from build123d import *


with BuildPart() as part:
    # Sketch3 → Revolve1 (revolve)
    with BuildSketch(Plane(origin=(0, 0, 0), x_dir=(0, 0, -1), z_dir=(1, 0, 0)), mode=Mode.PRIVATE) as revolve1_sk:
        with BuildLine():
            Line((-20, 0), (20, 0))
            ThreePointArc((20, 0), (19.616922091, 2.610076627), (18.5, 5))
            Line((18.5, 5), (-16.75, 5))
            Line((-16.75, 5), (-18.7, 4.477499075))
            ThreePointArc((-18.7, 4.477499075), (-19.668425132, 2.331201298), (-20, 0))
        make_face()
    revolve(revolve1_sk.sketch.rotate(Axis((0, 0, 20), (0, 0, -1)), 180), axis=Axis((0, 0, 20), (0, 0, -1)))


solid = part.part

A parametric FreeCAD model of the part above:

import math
import FreeCAD as App
import Part
import Sketcher

V = App.Vector
Q = App.Units.Quantity

doc = App.newDocument("Part")
params = doc.addObject("Spreadsheet::Sheet", "Params")
for row, (alias, value) in enumerate([
    ("sketch1_height", "40 mm"),
    ("sketch1_height2", "35.25 mm"),
    ("revolution_angle", "360 deg"),
], start=1):
    params.set(f"A{row}", alias)
    params.set(f"B{row}", "=" + value)
    params.setAlias(f"B{row}", alias)

body = doc.addObject("PartDesign::Body", "Body")

# Sketch on YZ plane
sketch1 = doc.addObject("Sketcher::SketchObject", "Sketch")
body.addObject(sketch1)
sketch1.AttachmentSupport = (doc.YZ_Plane, [""])
sketch1.MapMode = "FlatFace"
sketch1.addGeometry(Part.LineSegment(V(0, 20, 0), V(0, -20, 0)), False)
sketch1.addGeometry(Part.ArcOfCircle(Part.Circle(V(0, -10.916667, 0), V(0, 0, 1), 9.083333), math.radians(-90), math.radians(-56.601512)), False)
sketch1.addGeometry(Part.LineSegment(V(5, -18.5, 0), V(5, 16.75, 0)), False)
sketch1.addGeometry(Part.LineSegment(V(5, 16.75, 0), V(4.477499, 18.7, 0)), False)
sketch1.addGeometry(Part.ArcOfCircle(Part.Circle(V(0, 11.639232, 0), V(0, 0, 1), 8.360768), math.radians(57.619678), math.radians(90)), False)
sketch1.addConstraint(Sketcher.Constraint("Coincident", 0, 2, 1, 1))
sketch1.addConstraint(Sketcher.Constraint("Coincident", 1, 2, 2, 1))
sketch1.addConstraint(Sketcher.Constraint("Coincident", 2, 2, 3, 1))
sketch1.addConstraint(Sketcher.Constraint("Coincident", 3, 2, 4, 1))
sketch1.addConstraint(Sketcher.Constraint("Coincident", 4, 2, 0, 1))
sketch1.addConstraint(Sketcher.Constraint("Vertical", 0))
sketch1.addConstraint(Sketcher.Constraint("Vertical", 2))
sketch1.addConstraint(Sketcher.Constraint("Symmetric", 0, 2, 4, 2, -1, 1))
sketch1.addConstraint(Sketcher.Constraint("PointOnObject", 1, 3, -2))
sketch1.addConstraint(Sketcher.Constraint("PointOnObject", 4, 3, -2))
sketch1.addConstraint(Sketcher.Constraint("DistanceY", 0, 2, 0, 1, Q("40 mm")))
sketch1.addConstraint(Sketcher.Constraint("Angle", 3, Q("105 deg")))
sketch1.addConstraint(Sketcher.Constraint("DistanceX", -1, 1, 1, 2, Q("5 mm")))
sketch1.addConstraint(Sketcher.Constraint("DistanceY", 2, 1, 2, 2, Q("35.25 mm")))
sketch1.addConstraint(Sketcher.Constraint("DistanceY", 1, 2, -1, 1, Q("18.5 mm")))
sketch1.addConstraint(Sketcher.Constraint("DistanceY", -1, 1, 3, 2, Q("18.7 mm")))
sketch1.setExpression("Constraints[10]", "Params.sketch1_height")
sketch1.setExpression("Constraints[13]", "Params.sketch1_height2")
revolution = doc.addObject("PartDesign::Revolution", "Revolution")
body.addObject(revolution)
revolution.Profile = sketch1
revolution.ReferenceAxis = (sketch1, ["V_Axis"])
revolution.setExpression("Angle", "Params.revolution_angle")

doc.recompute()
